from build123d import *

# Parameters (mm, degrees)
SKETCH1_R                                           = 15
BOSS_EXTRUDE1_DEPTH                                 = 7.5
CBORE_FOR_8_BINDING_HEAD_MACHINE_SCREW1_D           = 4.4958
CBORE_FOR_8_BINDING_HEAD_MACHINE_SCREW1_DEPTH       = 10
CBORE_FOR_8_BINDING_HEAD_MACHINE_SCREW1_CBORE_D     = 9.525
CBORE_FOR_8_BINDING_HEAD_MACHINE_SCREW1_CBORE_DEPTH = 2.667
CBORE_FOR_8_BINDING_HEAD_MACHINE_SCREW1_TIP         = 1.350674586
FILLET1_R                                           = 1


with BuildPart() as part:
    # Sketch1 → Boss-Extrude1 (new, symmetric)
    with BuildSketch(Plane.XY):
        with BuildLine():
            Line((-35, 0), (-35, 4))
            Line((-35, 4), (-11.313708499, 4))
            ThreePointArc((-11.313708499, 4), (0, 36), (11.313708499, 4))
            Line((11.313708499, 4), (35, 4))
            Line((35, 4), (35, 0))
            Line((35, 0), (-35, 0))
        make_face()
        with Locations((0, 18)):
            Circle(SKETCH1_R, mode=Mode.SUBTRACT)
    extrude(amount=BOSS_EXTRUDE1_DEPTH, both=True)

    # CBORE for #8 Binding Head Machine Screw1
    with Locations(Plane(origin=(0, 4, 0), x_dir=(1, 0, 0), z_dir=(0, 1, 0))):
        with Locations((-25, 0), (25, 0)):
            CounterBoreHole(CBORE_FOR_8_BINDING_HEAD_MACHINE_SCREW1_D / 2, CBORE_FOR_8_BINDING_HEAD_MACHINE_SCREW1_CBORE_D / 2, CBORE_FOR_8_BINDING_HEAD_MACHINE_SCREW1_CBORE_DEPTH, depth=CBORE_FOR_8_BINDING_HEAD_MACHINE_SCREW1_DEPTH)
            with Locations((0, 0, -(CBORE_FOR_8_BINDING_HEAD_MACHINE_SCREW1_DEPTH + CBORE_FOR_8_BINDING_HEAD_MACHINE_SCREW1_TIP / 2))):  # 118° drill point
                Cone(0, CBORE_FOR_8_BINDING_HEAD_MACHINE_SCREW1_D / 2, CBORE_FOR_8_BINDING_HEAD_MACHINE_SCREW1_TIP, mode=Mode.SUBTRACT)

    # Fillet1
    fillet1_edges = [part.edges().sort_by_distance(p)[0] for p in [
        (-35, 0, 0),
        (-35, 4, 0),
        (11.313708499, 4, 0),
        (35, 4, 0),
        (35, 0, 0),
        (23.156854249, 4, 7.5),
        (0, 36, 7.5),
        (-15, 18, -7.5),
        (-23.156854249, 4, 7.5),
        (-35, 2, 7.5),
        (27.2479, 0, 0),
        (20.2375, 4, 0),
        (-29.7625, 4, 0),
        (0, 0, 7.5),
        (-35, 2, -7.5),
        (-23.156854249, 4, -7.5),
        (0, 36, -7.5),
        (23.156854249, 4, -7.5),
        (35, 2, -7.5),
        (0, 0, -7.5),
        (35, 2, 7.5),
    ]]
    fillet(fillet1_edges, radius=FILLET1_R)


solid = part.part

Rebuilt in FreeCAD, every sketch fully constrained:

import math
import FreeCAD as App
import Part
import Sketcher
from FreeCAD import Vector
Q = App.Units.Quantity


def edges_at(feature, points):
    """Names of the edges that pass closest to the given points."""
    edges = feature.Shape.Edges
    near = lambda p: min(range(len(edges)), key=lambda i: edges[i].distToShape(Part.Vertex(*p))[0])
    return sorted({f"Edge{near(p) + 1}" for p in points})

doc = App.newDocument("Part")
params = doc.addObject("Spreadsheet::Sheet", "Params")
for row, (alias, value) in enumerate([
    ("sketch1_diameter", "30 mm"),
    ("sketch1_radius", "18 mm"),
    ("sketch1_width", "70 mm"),
    ("sketch1_height", "4 mm"),
    ("pad1_length", "15 mm"),
    ("hole_diameter", "4.4958 mm"),
    ("hole_depth", "10 mm"),
    ("hole_cbore_diameter", "9.525 mm"),
    ("hole_cbore_depth", "2.667 mm"),
    ("fillet_radius", "1 mm"),
], start=1):
    params.set(f"A{row}", alias)
    params.set(f"B{row}", "=" + value)
    params.setAlias(f"B{row}", alias)

body = doc.addObject("PartDesign::Body", "Body")

# Sketch on XY plane
sketch1 = doc.addObject("Sketcher::SketchObject", "Sketch")
body.addObject(sketch1)
sketch1.AttachmentSupport = (doc.XY_Plane, [""])
sketch1.MapMode = "FlatFace"
sketch1.addGeometry([
    Part.LineSegment(Vector(-35, 4, 0), Vector(-35, 0, 0)),  # 0
    Part.LineSegment(Vector(-35, 0, 0), Vector(35, 0, 0)),  # 1
    Part.LineSegment(Vector(35, 0, 0), Vector(35, 4, 0)),  # 2
    Part.LineSegment(Vector(35, 4, 0), Vector(11.3, 4, 0)),  # 3
    Part.ArcOfCircle(Part.Circle(Vector(0, 18, 0), Vector(0, 0, 1), 18), math.radians(-51), math.radians(231)),  # 4
    Part.LineSegment(Vector(-11.3, 4, 0), Vector(-35, 4, 0)),  # 5
    Part.Circle(Vector(0, 18, 0), Vector(0, 0, 1), 15),  # 6
], False)
sketch1.addConstraint([
    Sketcher.Constraint("Coincident", 0, 2, 1, 1),
    Sketcher.Constraint("Coincident", 1, 2, 2, 1),
    Sketcher.Constraint("Coincident", 2, 2, 3, 1),
    Sketcher.Constraint("Coincident", 3, 2, 4, 1),
    Sketcher.Constraint("Coincident", 4, 2, 5, 1),
    Sketcher.Constraint("Coincident", 5, 2, 0, 1),
    Sketcher.Constraint("Vertical", 0),
    Sketcher.Constraint("Horizontal", 1),
    Sketcher.Constraint("Vertical", 2),
    Sketcher.Constraint("Horizontal", 3),
    Sketcher.Constraint("Horizontal", 5),
    Sketcher.Constraint("Coincident", 6, 3, 4, 3),
    Sketcher.Constraint("Symmetric", 0, 2, 1, 2, -1, 1),
    Sketcher.Constraint("Symmetric", 3, 2, 4, 2, -2),
    Sketcher.Constraint("Diameter", 6, Q("30 mm")),
    Sketcher.Constraint("Radius", 4, Q("18 mm")),
    Sketcher.Constraint("DistanceX", 1, 1, 1, 2, Q("70 mm")),
    Sketcher.Constraint("DistanceY", 0, 2, 0, 1, Q("4 mm")),
    Sketcher.Constraint("DistanceY", -1, 1, 4, 3, Q("18 mm")),
])
sketch1.setExpression("Constraints[14]", "Params.sketch1_diameter")
sketch1.setExpression("Constraints[15]", "Params.sketch1_radius")
sketch1.setExpression("Constraints[16]", "Params.sketch1_width")
sketch1.setExpression("Constraints[17]", "Params.sketch1_height")
pad1 = doc.addObject("PartDesign::Pad", "Pad")
body.addObject(pad1)
pad1.Profile = sketch1
pad1.setExpression("Length", "Params.pad1_length")
pad1.Midplane = True

# Sketch on XZ plane
sketch2 = doc.addObject("Sketcher::SketchObject", "Sketch001")
body.addObject(sketch2)
sketch2.AttachmentSupport = (doc.XZ_Plane, [""])
sketch2.MapMode = "FlatFace"
sketch2.AttachmentOffset = App.Placement(Vector(0, 0, -4), App.Rotation())
sketch2.addGeometry([
    Part.Circle(Vector(-25, 0, 0), Vector(0, 0, 1), 2.2),
    Part.Circle(Vector(25, 0, 0), Vector(0, 0, 1), 2.2),
], False)
sketch2.addConstraint([
    Sketcher.Constraint("Equal", 0, 1),
    Sketcher.Constraint("Symmetric", 0, 3, 1, 3, -1, 1),
    Sketcher.Constraint("PointOnObject", 0, 3, -1),
    Sketcher.Constraint("DistanceX", 0, 3, -1, 1, Q("25 mm")),
    Sketcher.Constraint("Diameter", 0, Q("4.4958 mm")),
])
doc.recompute()
hole = doc.addObject("PartDesign::Hole", "Hole")
body.addObject(hole)
hole.Profile = sketch2
hole.ThreadType = "None"
hole.setExpression("Diameter", "Params.hole_diameter")
hole.DepthType = "Dimension"
hole.setExpression("Depth", "Params.hole_depth")
hole.DrillPoint = "Angled"
hole.DrillPointAngle = 118
hole.HoleCutType = "Counterbore"
hole.setExpression("HoleCutDiameter", "Params.hole_cbore_diameter")
hole.setExpression("HoleCutDepth", "Params.hole_cbore_depth")
hole.Reversed = True
doc.recompute()

fillet = doc.addObject("PartDesign::Fillet", "Fillet")
body.addObject(fillet)
fillet.Base = (hole, edges_at(hole, [
    (-35, 0, 0),
    (-35, 4, 0),
    (11.314, 4, 0),
    (35, 4, 0),
    (35, 0, 0),
    (23.157, 4, 7.5),
    (0, 36, 7.5),
    (-15, 18, -7.5),
    (-23.157, 4, 7.5),
    (-35, 2, 7.5),
    (27.248, 0, 0),
    (20.238, 4, 0),
    (-29.762, 4, 0),
    (0, 0, 7.5),
    (-35, 2, -7.5),
    (-23.157, 4, -7.5),
    (0, 36, -7.5),
    (23.157, 4, -7.5),
    (35, 2, -7.5),
    (0, 0, -7.5),
    (35, 2, 7.5),
]))
fillet.setExpression("Radius", "Params.fillet_radius")

doc.recompute()
